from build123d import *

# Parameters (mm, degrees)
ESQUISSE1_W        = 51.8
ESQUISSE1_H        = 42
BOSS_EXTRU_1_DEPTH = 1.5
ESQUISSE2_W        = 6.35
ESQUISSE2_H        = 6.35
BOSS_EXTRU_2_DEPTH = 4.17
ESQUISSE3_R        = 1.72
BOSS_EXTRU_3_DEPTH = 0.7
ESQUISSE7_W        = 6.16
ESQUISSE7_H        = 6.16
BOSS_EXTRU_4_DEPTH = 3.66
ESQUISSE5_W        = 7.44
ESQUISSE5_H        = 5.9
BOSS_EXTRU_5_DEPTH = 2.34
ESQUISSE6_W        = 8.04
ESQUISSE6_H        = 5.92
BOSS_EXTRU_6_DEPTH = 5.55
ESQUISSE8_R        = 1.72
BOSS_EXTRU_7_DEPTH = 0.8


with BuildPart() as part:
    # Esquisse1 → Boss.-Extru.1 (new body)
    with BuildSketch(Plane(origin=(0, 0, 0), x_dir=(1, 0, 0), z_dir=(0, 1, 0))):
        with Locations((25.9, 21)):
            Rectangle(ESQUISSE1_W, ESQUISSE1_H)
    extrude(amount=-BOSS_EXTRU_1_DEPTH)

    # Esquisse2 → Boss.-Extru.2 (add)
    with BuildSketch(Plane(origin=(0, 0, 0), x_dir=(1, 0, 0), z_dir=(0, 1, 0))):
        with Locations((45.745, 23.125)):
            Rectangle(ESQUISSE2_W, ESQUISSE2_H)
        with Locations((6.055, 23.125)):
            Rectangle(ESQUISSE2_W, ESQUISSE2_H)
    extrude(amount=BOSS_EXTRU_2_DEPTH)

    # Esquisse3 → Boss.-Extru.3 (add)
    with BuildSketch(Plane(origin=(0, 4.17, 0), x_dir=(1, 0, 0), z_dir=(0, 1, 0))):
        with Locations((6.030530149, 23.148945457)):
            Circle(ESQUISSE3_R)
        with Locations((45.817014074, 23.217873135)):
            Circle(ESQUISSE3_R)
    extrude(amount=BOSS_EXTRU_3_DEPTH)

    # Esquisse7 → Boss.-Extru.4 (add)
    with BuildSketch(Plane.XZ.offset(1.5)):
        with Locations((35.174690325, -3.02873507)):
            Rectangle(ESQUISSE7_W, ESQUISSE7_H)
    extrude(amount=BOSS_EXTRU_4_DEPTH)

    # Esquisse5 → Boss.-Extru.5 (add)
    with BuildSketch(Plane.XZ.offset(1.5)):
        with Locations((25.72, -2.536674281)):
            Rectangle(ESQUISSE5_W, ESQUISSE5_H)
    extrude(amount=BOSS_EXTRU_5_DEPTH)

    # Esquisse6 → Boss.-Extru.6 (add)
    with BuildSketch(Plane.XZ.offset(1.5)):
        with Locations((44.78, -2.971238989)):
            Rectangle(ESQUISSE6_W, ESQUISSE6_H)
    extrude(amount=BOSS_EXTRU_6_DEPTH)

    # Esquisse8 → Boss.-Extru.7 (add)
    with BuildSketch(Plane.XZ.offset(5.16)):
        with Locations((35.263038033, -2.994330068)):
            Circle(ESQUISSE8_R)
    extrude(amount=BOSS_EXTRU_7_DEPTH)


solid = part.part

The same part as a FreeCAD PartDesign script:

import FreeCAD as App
import Part
import Sketcher
from FreeCAD import Vector


def add_polygon(sketch, points):
    """Adds a closed chain of lines whose ends are joined by coincident constraints."""
    first, n = sketch.GeometryCount, len(points)
    for a, b in zip(points, points[1:] + points[:1]):
        sketch.addGeometry(Part.LineSegment(App.Vector(*a, 0), App.Vector(*b, 0)), False)
    for i in range(n):
        sketch.addConstraint(Sketcher.Constraint("Coincident", first + i, 2, first + (i + 1) % n, 1))

doc = App.newDocument("Part")
body = doc.addObject("PartDesign::Body", "Body")

# Sketch on XZ plane
sketch1 = body.newObject("Sketcher::SketchObject", "Sketch")
sketch1.AttachmentSupport = (doc.getObject("XZ_Plane"), [""])
sketch1.MapMode = "FlatFace"
add_polygon(sketch1, [(0, -42), (0, 0), (52, 0), (52, -42)])  # lines 0-3
sketch1.addConstraint([
    Sketcher.Constraint("Vertical", 0),
    Sketcher.Constraint("Horizontal", 1),
    Sketcher.Constraint("Vertical", 2),
    Sketcher.Constraint("Horizontal", 3),
    Sketcher.Constraint("Coincident", 0, 2, -1, 1),
    Sketcher.Constraint("DistanceY", 0, 1, 0, 2, 42.0),
    Sketcher.Constraint("DistanceX", 1, 1, 1, 2, 51.8),
])
pad1 = body.newObject("PartDesign::Pad", "Pad")
pad1.Profile = sketch1
pad1.Length = 1.5

# Sketch on XZ plane
sketch2 = body.newObject("Sketcher::SketchObject", "Sketch001")
sketch2.AttachmentSupport = (doc.getObject("XZ_Plane"), [""])
sketch2.MapMode = "FlatFace"
add_polygon(sketch2, [(43, -26), (43, -20), (49, -20), (49, -26)])  # lines 0-3
add_polygon(sketch2, [(3, -26), (3, -20), (9, -20), (9, -26)])  # lines 4-7
sketch2.addConstraint([
    Sketcher.Constraint("Vertical", 0),
    Sketcher.Constraint("Horizontal", 1),
    Sketcher.Constraint("Vertical", 2),
    Sketcher.Constraint("Horizontal", 3),
    Sketcher.Constraint("Vertical", 4),
    Sketcher.Constraint("Horizontal", 5),
    Sketcher.Constraint("Vertical", 6),
    Sketcher.Constraint("Horizontal", 7),
    Sketcher.Constraint("Horizontal", 1, 2, 4, 2),
    Sketcher.Constraint("Horizontal", 3, 2, 6, 2),
    Sketcher.Constraint("Equal", 3, 5),
    Sketcher.Constraint("Equal", 7, 0),
    Sketcher.Constraint("DistanceX", 1, 1, 1, 2, 6.35),
    Sketcher.Constraint("DistanceY", 2, 2, -1, 1, 26.3),
    Sketcher.Constraint("DistanceX", -1, 1, 0, 2, 42.57),
    Sketcher.Constraint("DistanceX", -1, 1, 4, 2, 2.88),
])
pad2 = body.newObject("PartDesign::Pad", "Pad001")
pad2.Profile = sketch2
pad2.Length = 4.17
pad2.Reversed = True

# Sketch on XZ plane
sketch3 = body.newObject("Sketcher::SketchObject", "Sketch002")
sketch3.AttachmentSupport = (doc.getObject("XZ_Plane"), [""])
sketch3.MapMode = "FlatFace"
sketch3.AttachmentOffset = App.Placement(Vector(0, 0, -4.17), App.Rotation())
sketch3.addGeometry([
    Part.Circle(Vector(6, -23.1, 0), Vector(0, 0, 1), 1.7),
    Part.Circle(Vector(45.8, -23.2, 0), Vector(0, 0, 1), 1.7),
], False)
sketch3.addConstraint([
    Sketcher.Constraint("Equal", 0, 1),
    Sketcher.Constraint("Diameter", 0, 3.44),
    Sketcher.Constraint("DistanceX", -1, 1, 0, 3, 6.03053),
    Sketcher.Constraint("DistanceY", 0, 3, -1, 1, 23.148945),
    Sketcher.Constraint("DistanceX", -1, 1, 1, 3, 45.817014),
    Sketcher.Constraint("DistanceY", 1, 3, -1, 1, 23.217873),
])
pad3 = body.newObject("PartDesign::Pad", "Pad002")
pad3.Profile = sketch3
pad3.Length = 0.7
pad3.Reversed = True

# Sketch on XZ plane
sketch4 = body.newObject("Sketcher::SketchObject", "Sketch003")
sketch4.AttachmentSupport = (doc.getObject("XZ_Plane"), [""])
sketch4.MapMode = "FlatFace"
sketch4.AttachmentOffset = App.Placement(Vector(0, 0, 1.5), App.Rotation())
add_polygon(sketch4, [(32, 0), (32, -6), (38, -6), (38, 0)])  # lines 0-3
sketch4.addConstraint([
    Sketcher.Constraint("Vertical", 0),
    Sketcher.Constraint("Horizontal", 1),
    Sketcher.Constraint("Vertical", 2),
    Sketcher.Constraint("Horizontal", 3),
    Sketcher.Constraint("Equal", 3, 0),
    Sketcher.Constraint("DistanceX", 1, 1, 1, 2, 6.16),
    Sketcher.Constraint("DistanceX", -1, 1, 0, 2, 32.09469),
    Sketcher.Constraint("DistanceY", 0, 2, -1, 1, 6.108735),
])
pad4 = body.newObject("PartDesign::Pad", "Pad003")
pad4.Profile = sketch4
pad4.Length = 3.66

# Sketch on XZ plane
sketch5 = body.newObject("Sketcher::SketchObject", "Sketch004")
sketch5.AttachmentSupport = (doc.getObject("XZ_Plane"), [""])
sketch5.MapMode = "FlatFace"
sketch5.AttachmentOffset = App.Placement(Vector(0, 0, 1.5), App.Rotation())
add_polygon(sketch5, [(22, 0), (22, -5), (29, -5), (29, 0)])  # lines 0-3
sketch5.addConstraint([
    Sketcher.Constraint("Vertical", 0),
    Sketcher.Constraint("Horizontal", 1),
    Sketcher.Constraint("Vertical", 2),
    Sketcher.Constraint("Horizontal", 3),
    Sketcher.Constraint("DistanceY", 0, 2, 0, 1, 5.9),
    Sketcher.Constraint("DistanceX", -1, 1, 0, 2, 22.0),
    Sketcher.Constraint("DistanceX", 1, 1, 1, 2, 7.44),
    Sketcher.Constraint("DistanceY", 0, 2, -1, 1, 5.486674),
])
pad5 = body.newObject("PartDesign::Pad", "Pad004")
pad5.Profile = sketch5
pad5.Length = 2.34

# Sketch on XZ plane
sketch6 = body.newObject("Sketcher::SketchObject", "Sketch005")
sketch6.AttachmentSupport = (doc.getObject("XZ_Plane"), [""])
sketch6.MapMode = "FlatFace"
sketch6.AttachmentOffset = App.Placement(Vector(0, 0, 1.5), App.Rotation())
add_polygon(sketch6, [(41, 0), (41, -6), (49, -6), (49, 0)])  # lines 0-3
sketch6.addConstraint([
    Sketcher.Constraint("Vertical", 0),
    Sketcher.Constraint("Horizontal", 1),
    Sketcher.Constraint("Vertical", 2),
    Sketcher.Constraint("Horizontal", 3),
    Sketcher.Constraint("DistanceX", 1, 1, 1, 2, 8.04),
    Sketcher.Constraint("DistanceY", 0, 2, 0, 1, 5.92),
    Sketcher.Constraint("DistanceX", -1, 1, 1, 2, 48.8),
    Sketcher.Constraint("DistanceY", 0, 2, -1, 1, 5.931239),
])
pad6 = body.newObject("PartDesign::Pad", "Pad005")
pad6.Profile = sketch6
pad6.Length = 5.55

# Sketch on XZ plane
sketch7 = body.newObject("Sketcher::SketchObject", "Sketch006")
sketch7.AttachmentSupport = (doc.getObject("XZ_Plane"), [""])
sketch7.MapMode = "FlatFace"
sketch7.AttachmentOffset = App.Placement(Vector(0, 0, 5.16), App.Rotation())
sketch7.addGeometry(Part.Circle(Vector(35.3, -3, 0), Vector(0, 0, 1), 1.7), False)
sketch7.addConstraint([
    Sketcher.Constraint("Diameter", 0, 3.44),
    Sketcher.Constraint("DistanceX", -1, 1, 0, 3, 35.263038),
    Sketcher.Constraint("DistanceY", 0, 3, -1, 1, 2.99433),
])
pad7 = body.newObject("PartDesign::Pad", "Pad006")
pad7.Profile = sketch7
pad7.Length = 0.8

doc.recompute()
